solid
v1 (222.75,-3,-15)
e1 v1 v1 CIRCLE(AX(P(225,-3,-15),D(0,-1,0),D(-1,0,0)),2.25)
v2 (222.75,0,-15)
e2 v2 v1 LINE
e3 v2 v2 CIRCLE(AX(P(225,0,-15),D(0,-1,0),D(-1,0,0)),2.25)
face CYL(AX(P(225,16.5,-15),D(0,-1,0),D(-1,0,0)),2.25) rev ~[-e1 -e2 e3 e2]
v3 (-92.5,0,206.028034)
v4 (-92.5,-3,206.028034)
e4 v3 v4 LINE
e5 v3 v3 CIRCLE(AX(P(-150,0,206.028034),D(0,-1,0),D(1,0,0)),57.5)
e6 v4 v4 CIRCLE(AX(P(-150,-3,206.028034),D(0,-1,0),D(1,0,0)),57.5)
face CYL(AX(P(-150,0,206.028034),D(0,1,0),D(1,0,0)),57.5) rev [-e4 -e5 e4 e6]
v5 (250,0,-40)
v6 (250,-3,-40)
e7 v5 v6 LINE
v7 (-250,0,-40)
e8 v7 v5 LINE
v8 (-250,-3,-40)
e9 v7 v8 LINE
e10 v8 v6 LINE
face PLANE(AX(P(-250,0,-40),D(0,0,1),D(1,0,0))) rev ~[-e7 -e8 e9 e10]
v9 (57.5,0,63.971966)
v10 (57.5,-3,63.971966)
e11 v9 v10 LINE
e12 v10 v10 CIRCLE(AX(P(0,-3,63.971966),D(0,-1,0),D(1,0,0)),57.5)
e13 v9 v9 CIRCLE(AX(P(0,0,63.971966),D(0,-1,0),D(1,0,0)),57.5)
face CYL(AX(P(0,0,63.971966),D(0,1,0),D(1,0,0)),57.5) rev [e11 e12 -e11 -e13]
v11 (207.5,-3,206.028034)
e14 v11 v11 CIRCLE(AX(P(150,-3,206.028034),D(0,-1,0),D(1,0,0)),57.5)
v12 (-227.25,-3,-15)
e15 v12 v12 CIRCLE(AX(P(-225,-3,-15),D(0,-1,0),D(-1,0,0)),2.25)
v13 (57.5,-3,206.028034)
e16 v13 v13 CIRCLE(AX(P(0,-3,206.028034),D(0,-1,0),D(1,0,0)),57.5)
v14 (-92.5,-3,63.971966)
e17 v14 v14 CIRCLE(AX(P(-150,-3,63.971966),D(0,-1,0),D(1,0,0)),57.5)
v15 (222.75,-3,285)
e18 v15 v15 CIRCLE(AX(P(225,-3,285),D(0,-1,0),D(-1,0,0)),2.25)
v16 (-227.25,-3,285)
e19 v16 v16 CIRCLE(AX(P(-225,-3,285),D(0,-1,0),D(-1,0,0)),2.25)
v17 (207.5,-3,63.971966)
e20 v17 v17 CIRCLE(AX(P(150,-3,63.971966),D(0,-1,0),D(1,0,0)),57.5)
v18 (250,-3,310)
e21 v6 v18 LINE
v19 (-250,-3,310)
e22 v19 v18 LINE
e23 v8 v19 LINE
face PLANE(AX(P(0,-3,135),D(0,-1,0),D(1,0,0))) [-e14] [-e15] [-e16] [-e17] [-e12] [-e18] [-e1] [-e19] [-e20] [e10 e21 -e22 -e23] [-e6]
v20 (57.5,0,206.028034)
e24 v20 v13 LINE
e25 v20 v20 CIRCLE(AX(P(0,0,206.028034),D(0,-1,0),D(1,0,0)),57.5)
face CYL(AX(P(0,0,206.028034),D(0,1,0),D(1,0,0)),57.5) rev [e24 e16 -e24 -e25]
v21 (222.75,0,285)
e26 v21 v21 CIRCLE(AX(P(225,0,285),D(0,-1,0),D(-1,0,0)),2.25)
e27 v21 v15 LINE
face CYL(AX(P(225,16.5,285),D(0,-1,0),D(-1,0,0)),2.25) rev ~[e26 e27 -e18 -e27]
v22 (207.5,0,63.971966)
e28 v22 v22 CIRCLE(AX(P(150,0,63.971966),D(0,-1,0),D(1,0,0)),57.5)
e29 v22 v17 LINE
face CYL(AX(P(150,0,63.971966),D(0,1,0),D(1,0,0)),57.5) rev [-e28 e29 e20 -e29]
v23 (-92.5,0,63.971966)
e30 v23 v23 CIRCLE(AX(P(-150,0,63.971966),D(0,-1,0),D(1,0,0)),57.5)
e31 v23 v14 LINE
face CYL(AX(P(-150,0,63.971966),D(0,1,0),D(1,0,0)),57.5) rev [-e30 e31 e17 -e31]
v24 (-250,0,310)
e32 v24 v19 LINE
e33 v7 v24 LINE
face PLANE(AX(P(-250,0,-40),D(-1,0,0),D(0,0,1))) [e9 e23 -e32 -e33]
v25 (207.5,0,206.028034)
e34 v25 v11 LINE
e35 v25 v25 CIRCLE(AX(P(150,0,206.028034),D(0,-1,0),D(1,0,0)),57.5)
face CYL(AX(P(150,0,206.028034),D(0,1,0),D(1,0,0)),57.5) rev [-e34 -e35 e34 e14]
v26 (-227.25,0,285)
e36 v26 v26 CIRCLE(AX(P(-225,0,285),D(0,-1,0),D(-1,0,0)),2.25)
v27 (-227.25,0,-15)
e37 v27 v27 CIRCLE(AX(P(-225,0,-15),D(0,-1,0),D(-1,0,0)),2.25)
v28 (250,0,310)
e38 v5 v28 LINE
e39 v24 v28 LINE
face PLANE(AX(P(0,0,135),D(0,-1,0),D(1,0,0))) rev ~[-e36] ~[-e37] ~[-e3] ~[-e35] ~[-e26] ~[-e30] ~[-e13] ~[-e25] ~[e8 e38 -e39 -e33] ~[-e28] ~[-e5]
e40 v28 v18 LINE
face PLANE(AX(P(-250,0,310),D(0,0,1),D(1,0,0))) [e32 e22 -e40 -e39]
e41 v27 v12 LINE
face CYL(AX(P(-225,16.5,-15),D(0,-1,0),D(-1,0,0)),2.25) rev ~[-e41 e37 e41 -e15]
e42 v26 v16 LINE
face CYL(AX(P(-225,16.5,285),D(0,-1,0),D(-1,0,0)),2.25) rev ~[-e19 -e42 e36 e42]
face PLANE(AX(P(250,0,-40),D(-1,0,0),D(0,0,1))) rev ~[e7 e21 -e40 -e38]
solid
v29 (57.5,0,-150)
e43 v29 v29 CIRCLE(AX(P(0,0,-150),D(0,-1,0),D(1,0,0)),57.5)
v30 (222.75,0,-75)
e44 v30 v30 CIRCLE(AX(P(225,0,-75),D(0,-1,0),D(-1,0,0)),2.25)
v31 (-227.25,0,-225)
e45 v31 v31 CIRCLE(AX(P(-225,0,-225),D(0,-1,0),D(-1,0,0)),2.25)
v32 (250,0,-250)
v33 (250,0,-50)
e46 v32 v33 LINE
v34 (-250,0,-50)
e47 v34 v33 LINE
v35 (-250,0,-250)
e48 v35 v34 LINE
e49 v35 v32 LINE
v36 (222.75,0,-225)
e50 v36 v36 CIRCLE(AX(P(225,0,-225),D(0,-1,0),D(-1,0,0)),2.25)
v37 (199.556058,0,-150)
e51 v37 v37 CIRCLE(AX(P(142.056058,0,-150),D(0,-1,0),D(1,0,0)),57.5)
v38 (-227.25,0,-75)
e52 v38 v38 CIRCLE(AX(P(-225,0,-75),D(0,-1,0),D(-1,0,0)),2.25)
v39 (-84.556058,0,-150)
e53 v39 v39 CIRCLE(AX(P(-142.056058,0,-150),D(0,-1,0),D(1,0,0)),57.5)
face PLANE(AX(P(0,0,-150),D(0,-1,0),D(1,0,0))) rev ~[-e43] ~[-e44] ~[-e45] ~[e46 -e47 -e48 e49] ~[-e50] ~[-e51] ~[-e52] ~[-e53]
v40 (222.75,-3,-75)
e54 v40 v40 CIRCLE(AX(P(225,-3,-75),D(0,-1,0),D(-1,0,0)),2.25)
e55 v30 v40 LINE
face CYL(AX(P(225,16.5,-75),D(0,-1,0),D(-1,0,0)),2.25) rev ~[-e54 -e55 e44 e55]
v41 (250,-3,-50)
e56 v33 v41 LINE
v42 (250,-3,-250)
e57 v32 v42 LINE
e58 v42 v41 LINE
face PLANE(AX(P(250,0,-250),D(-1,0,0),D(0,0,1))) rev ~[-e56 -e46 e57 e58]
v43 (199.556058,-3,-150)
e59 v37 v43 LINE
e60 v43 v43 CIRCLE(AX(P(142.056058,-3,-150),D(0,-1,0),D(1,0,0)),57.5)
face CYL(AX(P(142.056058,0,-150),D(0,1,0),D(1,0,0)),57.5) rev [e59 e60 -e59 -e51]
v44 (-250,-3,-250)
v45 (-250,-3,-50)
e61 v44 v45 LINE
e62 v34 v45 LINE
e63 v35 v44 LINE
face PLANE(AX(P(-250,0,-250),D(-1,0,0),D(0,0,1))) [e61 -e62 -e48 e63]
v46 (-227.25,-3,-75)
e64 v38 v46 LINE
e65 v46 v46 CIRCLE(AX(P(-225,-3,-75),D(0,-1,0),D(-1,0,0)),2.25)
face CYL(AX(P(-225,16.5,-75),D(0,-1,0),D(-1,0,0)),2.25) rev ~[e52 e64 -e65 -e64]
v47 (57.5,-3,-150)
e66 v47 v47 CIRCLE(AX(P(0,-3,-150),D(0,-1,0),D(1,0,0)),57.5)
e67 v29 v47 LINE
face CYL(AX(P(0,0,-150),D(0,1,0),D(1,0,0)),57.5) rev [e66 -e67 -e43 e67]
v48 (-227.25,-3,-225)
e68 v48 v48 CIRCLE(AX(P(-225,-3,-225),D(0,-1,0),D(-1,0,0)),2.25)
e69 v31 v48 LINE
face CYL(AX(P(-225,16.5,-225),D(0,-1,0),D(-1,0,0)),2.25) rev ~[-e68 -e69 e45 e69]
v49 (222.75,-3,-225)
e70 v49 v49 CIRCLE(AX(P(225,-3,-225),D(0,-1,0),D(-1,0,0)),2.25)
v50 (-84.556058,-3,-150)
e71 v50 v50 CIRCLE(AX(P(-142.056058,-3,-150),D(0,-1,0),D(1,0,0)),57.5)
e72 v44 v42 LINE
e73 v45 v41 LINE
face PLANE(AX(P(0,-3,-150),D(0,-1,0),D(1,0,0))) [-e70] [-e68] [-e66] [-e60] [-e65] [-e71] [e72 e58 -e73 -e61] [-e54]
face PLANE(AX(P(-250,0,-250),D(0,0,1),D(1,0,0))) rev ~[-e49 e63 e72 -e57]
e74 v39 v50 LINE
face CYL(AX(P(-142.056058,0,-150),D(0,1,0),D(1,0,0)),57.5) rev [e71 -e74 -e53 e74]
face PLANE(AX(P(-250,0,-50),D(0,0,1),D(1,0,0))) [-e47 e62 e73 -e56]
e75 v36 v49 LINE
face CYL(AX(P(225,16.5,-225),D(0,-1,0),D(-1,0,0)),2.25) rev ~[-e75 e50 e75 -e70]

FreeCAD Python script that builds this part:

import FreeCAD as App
import Part
import Sketcher

V = App.Vector


def add_polygon(sketch, points):
    """Adds a closed chain of lines whose ends are joined by coincident constraints."""
    first, n = sketch.GeometryCount, len(points)
    for a, b in zip(points, points[1:] + points[:1]):
        sketch.addGeometry(Part.LineSegment(App.Vector(*a, 0), App.Vector(*b, 0)), False)
    for i in range(n):
        sketch.addConstraint(Sketcher.Constraint("Coincident", first + i, 2, first + (i + 1) % n, 1))

doc = App.newDocument("Part")
params = doc.addObject("Spreadsheet::Sheet", "Params")
for row, (alias, value) in enumerate([
    ("sketch1_diameter", "115 mm"),
    ("sketch1_width", "500 mm"),
    ("sketch1_height", "200 mm"),
    ("pad1_length", "3 mm"),
    ("sketch2_diameter", "4.5 mm"),
    ("hole_diameter", "4.5 mm"),
    ("hole_depth", "16.5 mm"),
    ("sketch3_diameter", "115 mm"),
    ("sketch3_width", "500 mm"),
    ("sketch3_height", "350 mm"),
    ("pad2_length", "3 mm"),
    ("sketch4_diameter", "4.5 mm"),
    ("hole2_diameter", "4.5 mm"),
    ("hole2_depth", "16.5 mm"),
], start=1):
    params.set(f"A{row}", alias)
    params.set(f"B{row}", "=" + value)
    params.setAlias(f"B{row}", alias)

body = doc.addObject("PartDesign::Body", "Body")

# Sketch on XZ plane
sketch1 = body.newObject("Sketcher::SketchObject", "Sketch")
sketch1.AttachmentSupport = (doc.getObject("XZ_Plane"), [""])
sketch1.MapMode = "FlatFace"
add_polygon(sketch1, [(-250, -50), (-250, -250), (250, -250), (250, -50)])  # lines 0-3
sketch1.addGeometry(Part.Circle(V(-142, -150, 0), V(0, 0, 1), 58), False)  # 4
sketch1.addGeometry(Part.Circle(V(0, -150, 0), V(0, 0, 1), 58), False)  # 5
sketch1.addGeometry(Part.Circle(V(142, -150, 0), V(0, 0, 1), 58), False)  # 6
sketch1.addConstraint(Sketcher.Constraint("Vertical", 0))
sketch1.addConstraint(Sketcher.Constraint("Horizontal", 1))
sketch1.addConstraint(Sketcher.Constraint("Vertical", 2))
sketch1.addConstraint(Sketcher.Constraint("Horizontal", 3))
sketch1.addConstraint(Sketcher.Constraint("Equal", 4, 5))
sketch1.addConstraint(Sketcher.Constraint("Equal", 5, 6))
sketch1.addConstraint(Sketcher.Constraint("Symmetric", 4, 3, 6, 3, -2))
sketch1.addConstraint(Sketcher.Constraint("PointOnObject", 5, 3, -2))
sketch1.addConstraint(Sketcher.Constraint("Horizontal", 4, 3, 5, 3))
sketch1.addConstraint(Sketcher.Constraint("Diameter", 4, 115.0))
sketch1.addConstraint(Sketcher.Constraint("DistanceX", 1, 1, 1, 2, 500.0))
sketch1.addConstraint(Sketcher.Constraint("DistanceY", 0, 2, 0, 1, 200.0))
sketch1.addConstraint(Sketcher.Constraint("DistanceY", 4, 3, -1, 1, 150.0))
sketch1.addConstraint(Sketcher.Constraint("DistanceX", 0, 2, -1, 1, 250.0))
sketch1.addConstraint(Sketcher.Constraint("DistanceY", 0, 2, -1, 1, 250.0))
sketch1.addConstraint(Sketcher.Constraint("DistanceX", 4, 3, -1, 1, 142.056058))
sketch1.setExpression("Constraints[13]", "Params.sketch1_diameter")
sketch1.setExpression("Constraints[14]", "Params.sketch1_width")
sketch1.setExpression("Constraints[15]", "Params.sketch1_height")
pad1 = body.newObject("PartDesign::Pad", "Pad")
pad1.Profile = sketch1
pad1.setExpression("Length", "Params.pad1_length")

# Sketch on XZ plane
sketch2 = body.newObject("Sketcher::SketchObject", "Sketch001")
sketch2.AttachmentSupport = (doc.getObject("XZ_Plane"), [""])
sketch2.MapMode = "FlatFace"
sketch2.addGeometry(Part.Circle(V(225, 285, 0), V(0, 0, 1), 2.2), False)
sketch2.addGeometry(Part.Circle(V(225, -15, 0), V(0, 0, 1), 2.2), False)
sketch2.addGeometry(Part.Circle(V(-225, -15, 0), V(0, 0, 1), 2.2), False)
sketch2.addGeometry(Part.Circle(V(-225, 285, 0), V(0, 0, 1), 2.2), False)
sketch2.addGeometry(Part.Circle(V(-225, -225, 0), V(0, 0, 1), 2.2), False)
sketch2.addGeometry(Part.Circle(V(-225, -75, 0), V(0, 0, 1), 2.2), False)
sketch2.addGeometry(Part.Circle(V(225, -75, 0), V(0, 0, 1), 2.2), False)
sketch2.addGeometry(Part.Circle(V(225, -225, 0), V(0, 0, 1), 2.2), False)
sketch2.addConstraint(Sketcher.Constraint("Equal", 0, 1))
sketch2.addConstraint(Sketcher.Constraint("Equal", 1, 2))
sketch2.addConstraint(Sketcher.Constraint("Equal", 2, 3))
sketch2.addConstraint(Sketcher.Constraint("Equal", 3, 4))
sketch2.addConstraint(Sketcher.Constraint("Equal", 4, 5))
sketch2.addConstraint(Sketcher.Constraint("Equal", 5, 6))
sketch2.addConstraint(Sketcher.Constraint("Equal", 6, 7))
sketch2.addConstraint(Sketcher.Constraint("Symmetric", 1, 3, 2, 3, -2))
sketch2.addConstraint(Sketcher.Constraint("Symmetric", 0, 3, 3, 3, -2))
sketch2.addConstraint(Sketcher.Constraint("Symmetric", 5, 3, 6, 3, -2))
sketch2.addConstraint(Sketcher.Constraint("Symmetric", 4, 3, 7, 3, -2))
sketch2.addConstraint(Sketcher.Constraint("Vertical", 0, 3, 1, 3))
sketch2.addConstraint(Sketcher.Constraint("Vertical", 3, 3, 4, 3))
sketch2.addConstraint(Sketcher.Constraint("Vertical", 4, 3, 5, 3))
sketch2.addConstraint(Sketcher.Constraint("Diameter", 0, 4.5))
sketch2.addConstraint(Sketcher.Constraint("DistanceX", -1, 1, 0, 3, 225.0))
sketch2.addConstraint(Sketcher.Constraint("DistanceY", -1, 1, 0, 3, 285.0))
sketch2.addConstraint(Sketcher.Constraint("DistanceY", 1, 3, -1, 1, 15.0))
sketch2.addConstraint(Sketcher.Constraint("DistanceY", 4, 3, -1, 1, 225.0))
sketch2.addConstraint(Sketcher.Constraint("DistanceY", 5, 3, -1, 1, 75.0))
sketch2.setExpression("Constraints[14]", "Params.sketch2_diameter")
doc.recompute()
hole = body.newObject("PartDesign::Hole", "Hole")
hole.Profile = sketch2
hole.ThreadType = "None"
hole.setExpression("Diameter", "Params.hole_diameter")
hole.DepthType = "Dimension"
hole.setExpression("Depth", "Params.hole_depth")
hole.DrillPoint = "Angled"
hole.DrillPointAngle = 118
hole.Reversed = True
body2 = doc.addObject("PartDesign::Body", "Body001")

# Sketch on XZ plane
sketch3 = body2.newObject("Sketcher::SketchObject", "Sketch002")
sketch3.AttachmentSupport = (doc.getObject("XZ_Plane001"), [""])
sketch3.MapMode = "FlatFace"
add_polygon(sketch3, [(-250, 310), (-250, -40), (250, -40), (250, 310)])  # lines 0-3
sketch3.addGeometry(Part.Circle(V(-150, 64, 0), V(0, 0, 1), 58), False)  # 4
sketch3.addGeometry(Part.Circle(V(0, 64, 0), V(0, 0, 1), 58), False)  # 5
sketch3.addGeometry(Part.Circle(V(150, 64, 0), V(0, 0, 1), 58), False)  # 6
sketch3.addGeometry(Part.Circle(V(-150, 206, 0), V(0, 0, 1), 58), False)  # 7
sketch3.addGeometry(Part.Circle(V(0, 206, 0), V(0, 0, 1), 58), False)  # 8
sketch3.addGeometry(Part.Circle(V(150, 206, 0), V(0, 0, 1), 58), False)  # 9
sketch3.addConstraint(Sketcher.Constraint("Vertical", 0))
sketch3.addConstraint(Sketcher.Constraint("Horizontal", 1))
sketch3.addConstraint(Sketcher.Constraint("Vertical", 2))
sketch3.addConstraint(Sketcher.Constraint("Horizontal", 3))
sketch3.addConstraint(Sketcher.Constraint("Equal", 4, 5))
sketch3.addConstraint(Sketcher.Constraint("Equal", 5, 6))
sketch3.addConstraint(Sketcher.Constraint("Equal", 6, 7))
sketch3.addConstraint(Sketcher.Constraint("Equal", 7, 8))
sketch3.addConstraint(Sketcher.Constraint("Equal", 8, 9))
sketch3.addConstraint(Sketcher.Constraint("Symmetric", 4, 3, 6, 3, -2))
sketch3.addConstraint(Sketcher.Constraint("Symmetric", 7, 3, 9, 3, -2))
sketch3.addConstraint(Sketcher.Constraint("PointOnObject", 5, 3, -2))
sketch3.addConstraint(Sketcher.Constraint("PointOnObject", 8, 3, -2))
sketch3.addConstraint(Sketcher.Constraint("Horizontal", 4, 3, 5, 3))
sketch3.addConstraint(Sketcher.Constraint("Horizontal", 7, 3, 8, 3))
sketch3.addConstraint(Sketcher.Constraint("Vertical", 4, 3, 7, 3))
sketch3.addConstraint(Sketcher.Constraint("Diameter", 4, 115.0))
sketch3.addConstraint(Sketcher.Constraint("DistanceX", 1, 1, 1, 2, 500.0))
sketch3.addConstraint(Sketcher.Constraint("DistanceY", 0, 2, 0, 1, 350.0))
sketch3.addConstraint(Sketcher.Constraint("DistanceX", 4, 3, -1, 1, 150.0))
sketch3.addConstraint(Sketcher.Constraint("DistanceX", 0, 2, -1, 1, 250.0))
sketch3.addConstraint(Sketcher.Constraint("DistanceY", 0, 2, -1, 1, 40.0))
sketch3.addConstraint(Sketcher.Constraint("DistanceY", -1, 1, 4, 3, 63.971966))
sketch3.addConstraint(Sketcher.Constraint("DistanceY", -1, 1, 7, 3, 206.028034))
sketch3.setExpression("Constraints[20]", "Params.sketch3_diameter")
sketch3.setExpression("Constraints[21]", "Params.sketch3_width")
sketch3.setExpression("Constraints[22]", "Params.sketch3_height")
pad2 = body2.newObject("PartDesign::Pad", "Pad001")
pad2.Profile = sketch3
pad2.setExpression("Length", "Params.pad2_length")

# Sketch on XZ plane
sketch4 = body2.newObject("Sketcher::SketchObject", "Sketch003")
sketch4.AttachmentSupport = (doc.getObject("XZ_Plane001"), [""])
sketch4.MapMode = "FlatFace"
sketch4.addGeometry(Part.Circle(V(225, 285, 0), V(0, 0, 1), 2.2), False)
sketch4.addGeometry(Part.Circle(V(225, -15, 0), V(0, 0, 1), 2.2), False)
sketch4.addGeometry(Part.Circle(V(-225, -15, 0), V(0, 0, 1), 2.2), False)
sketch4.addGeometry(Part.Circle(V(-225, 285, 0), V(0, 0, 1), 2.2), False)
sketch4.addGeometry(Part.Circle(V(-225, -225, 0), V(0, 0, 1), 2.2), False)
sketch4.addGeometry(Part.Circle(V(-225, -75, 0), V(0, 0, 1), 2.2), False)
sketch4.addGeometry(Part.Circle(V(225, -75, 0), V(0, 0, 1), 2.2), False)
sketch4.addGeometry(Part.Circle(V(225, -225, 0), V(0, 0, 1), 2.2), False)
sketch4.addConstraint(Sketcher.Constraint("Equal", 0, 1))
sketch4.addConstraint(Sketcher.Constraint("Equal", 1, 2))
sketch4.addConstraint(Sketcher.Constraint("Equal", 2, 3))
sketch4.addConstraint(Sketcher.Constraint("Equal", 3, 4))
sketch4.addConstraint(Sketcher.Constraint("Equal", 4, 5))
sketch4.addConstraint(Sketcher.Constraint("Equal", 5, 6))
sketch4.addConstraint(Sketcher.Constraint("Equal", 6, 7))
sketch4.addConstraint(Sketcher.Constraint("Symmetric", 1, 3, 2, 3, -2))
sketch4.addConstraint(Sketcher.Constraint("Symmetric", 0, 3, 3, 3, -2))
sketch4.addConstraint(Sketcher.Constraint("Symmetric", 5, 3, 6, 3, -2))
sketch4.addConstraint(Sketcher.Constraint("Symmetric", 4, 3, 7, 3, -2))
sketch4.addConstraint(Sketcher.Constraint("Vertical", 0, 3, 1, 3))
sketch4.addConstraint(Sketcher.Constraint("Vertical", 3, 3, 4, 3))
sketch4.addConstraint(Sketcher.Constraint("Vertical", 4, 3, 5, 3))
sketch4.addConstraint(Sketcher.Constraint("Diameter", 0, 4.5))
sketch4.addConstraint(Sketcher.Constraint("DistanceX", -1, 1, 0, 3, 225.0))
sketch4.addConstraint(Sketcher.Constraint("DistanceY", -1, 1, 0, 3, 285.0))
sketch4.addConstraint(Sketcher.Constraint("DistanceY", 1, 3, -1, 1, 15.0))
sketch4.addConstraint(Sketcher.Constraint("DistanceY", 4, 3, -1, 1, 225.0))
sketch4.addConstraint(Sketcher.Constraint("DistanceY", 5, 3, -1, 1, 75.0))
sketch4.setExpression("Constraints[14]", "Params.sketch4_diameter")
doc.recompute()
hole2 = body2.newObject("PartDesign::Hole", "Hole001")
hole2.Profile = sketch4
hole2.ThreadType = "None"
hole2.setExpression("Diameter", "Params.hole2_diameter")
hole2.DepthType = "Dimension"
hole2.setExpression("Depth", "Params.hole2_depth")
hole2.DrillPoint = "Angled"
hole2.DrillPointAngle = 118
hole2.Reversed = True

doc.recompute()
